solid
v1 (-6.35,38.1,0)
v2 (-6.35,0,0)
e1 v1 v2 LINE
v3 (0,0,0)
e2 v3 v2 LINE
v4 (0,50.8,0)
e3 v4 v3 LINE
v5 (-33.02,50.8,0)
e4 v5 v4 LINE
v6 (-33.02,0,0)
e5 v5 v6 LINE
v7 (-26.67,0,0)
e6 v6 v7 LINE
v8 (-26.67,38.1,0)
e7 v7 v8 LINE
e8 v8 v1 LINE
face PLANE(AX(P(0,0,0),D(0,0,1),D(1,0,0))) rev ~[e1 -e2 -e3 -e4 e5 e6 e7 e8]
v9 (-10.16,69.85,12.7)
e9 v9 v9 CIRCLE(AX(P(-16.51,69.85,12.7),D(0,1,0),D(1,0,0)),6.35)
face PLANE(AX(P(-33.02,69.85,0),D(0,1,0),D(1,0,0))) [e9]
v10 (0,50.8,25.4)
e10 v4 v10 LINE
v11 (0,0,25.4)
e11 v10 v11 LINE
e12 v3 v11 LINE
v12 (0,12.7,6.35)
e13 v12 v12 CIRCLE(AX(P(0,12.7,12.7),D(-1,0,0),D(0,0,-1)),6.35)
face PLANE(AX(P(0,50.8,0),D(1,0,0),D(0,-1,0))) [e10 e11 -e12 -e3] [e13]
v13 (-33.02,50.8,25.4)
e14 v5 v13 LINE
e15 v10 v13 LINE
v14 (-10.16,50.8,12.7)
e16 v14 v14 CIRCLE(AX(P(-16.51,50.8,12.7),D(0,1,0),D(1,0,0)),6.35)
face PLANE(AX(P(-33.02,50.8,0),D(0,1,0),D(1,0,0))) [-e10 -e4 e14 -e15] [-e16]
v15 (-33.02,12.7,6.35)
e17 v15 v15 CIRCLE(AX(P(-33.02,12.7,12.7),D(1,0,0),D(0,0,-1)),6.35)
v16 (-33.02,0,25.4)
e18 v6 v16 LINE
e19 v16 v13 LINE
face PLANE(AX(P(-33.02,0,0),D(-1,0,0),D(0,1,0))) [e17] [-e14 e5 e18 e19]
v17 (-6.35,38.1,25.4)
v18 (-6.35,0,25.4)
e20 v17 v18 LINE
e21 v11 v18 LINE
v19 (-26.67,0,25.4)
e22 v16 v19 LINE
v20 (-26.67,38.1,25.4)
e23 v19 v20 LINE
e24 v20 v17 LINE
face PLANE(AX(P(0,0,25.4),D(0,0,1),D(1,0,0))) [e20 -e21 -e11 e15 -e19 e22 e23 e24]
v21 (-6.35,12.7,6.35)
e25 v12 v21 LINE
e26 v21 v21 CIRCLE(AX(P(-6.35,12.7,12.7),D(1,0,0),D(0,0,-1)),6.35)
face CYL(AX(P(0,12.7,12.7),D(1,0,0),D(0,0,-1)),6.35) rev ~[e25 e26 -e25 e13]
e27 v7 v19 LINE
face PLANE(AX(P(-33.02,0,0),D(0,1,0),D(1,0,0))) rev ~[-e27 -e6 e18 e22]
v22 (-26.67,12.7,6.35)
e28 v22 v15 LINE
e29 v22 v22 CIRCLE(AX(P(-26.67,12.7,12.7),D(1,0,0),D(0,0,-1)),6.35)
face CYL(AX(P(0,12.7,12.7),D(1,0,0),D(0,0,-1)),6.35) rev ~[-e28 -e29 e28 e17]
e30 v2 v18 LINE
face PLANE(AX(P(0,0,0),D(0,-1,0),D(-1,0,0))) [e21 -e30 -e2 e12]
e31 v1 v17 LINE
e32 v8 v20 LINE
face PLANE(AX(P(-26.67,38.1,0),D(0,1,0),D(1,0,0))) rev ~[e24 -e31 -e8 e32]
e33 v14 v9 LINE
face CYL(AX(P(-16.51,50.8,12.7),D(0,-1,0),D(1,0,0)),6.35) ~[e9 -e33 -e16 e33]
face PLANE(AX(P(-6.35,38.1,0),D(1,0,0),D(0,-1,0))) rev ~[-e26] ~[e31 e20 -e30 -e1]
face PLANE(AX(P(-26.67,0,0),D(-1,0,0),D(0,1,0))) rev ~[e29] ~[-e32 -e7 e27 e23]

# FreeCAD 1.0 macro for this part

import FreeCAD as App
import Part
import Sketcher

V = App.Vector
Q = App.Units.Quantity

doc = App.newDocument("Part")
body = doc.addObject("PartDesign::Body", "Body")

sketch1 = body.newObject("Sketcher::SketchObject", "Sketch")
sketch1.AttachmentSupport = (doc.getObject("XY_Plane"), [""])
sketch1.MapMode = "FlatFace"
sketch1.addGeometry([
    Part.LineSegment(V(-33, 51, 0), V(-33, 0, 0)),
    Part.LineSegment(V(-33, 0, 0), V(-27, 0, 0)),
    Part.LineSegment(V(-27, 0, 0), V(-27, 38, 0)),
    Part.LineSegment(V(-27, 38, 0), V(-6, 38, 0)),
    Part.LineSegment(V(-6, 38, 0), V(-6, 0, 0)),
    Part.LineSegment(V(-6, 0, 0), V(0, 0, 0)),
    Part.LineSegment(V(0, 0, 0), V(0, 51, 0)),
    Part.LineSegment(V(0, 51, 0), V(-33, 51, 0)),
], False)
sketch1.addConstraint([
    Sketcher.Constraint("Coincident", 0, 2, 1, 1),
    Sketcher.Constraint("Coincident", 1, 2, 2, 1),
    Sketcher.Constraint("Coincident", 2, 2, 3, 1),
    Sketcher.Constraint("Coincident", 3, 2, 4, 1),
    Sketcher.Constraint("Coincident", 4, 2, 5, 1),
    Sketcher.Constraint("Coincident", 5, 2, 6, 1),
    Sketcher.Constraint("Coincident", 6, 2, 7, 1),
    Sketcher.Constraint("Coincident", 7, 2, 0, 1),
    Sketcher.Constraint("Vertical", 0),
    Sketcher.Constraint("Horizontal", 1),
    Sketcher.Constraint("Vertical", 2),
    Sketcher.Constraint("Horizontal", 3),
    Sketcher.Constraint("Vertical", 4),
    Sketcher.Constraint("Horizontal", 5),
    Sketcher.Constraint("Vertical", 6),
    Sketcher.Constraint("Horizontal", 7),
    Sketcher.Constraint("Coincident", 5, 2, -1, 1),
    Sketcher.Constraint("PointOnObject", 0, 2, -1),
    Sketcher.Constraint("Equal", 1, 5),
    Sketcher.Constraint("DistanceY", 0, 2, 0, 1, Q("2 in")),
    Sketcher.Constraint("DistanceX", 7, 2, 7, 1, Q("1.3 in")),
    Sketcher.Constraint("DistanceY", 2, 1, 2, 2, Q("1.5 in")),
    Sketcher.Constraint("DistanceX", 1, 1, 1, 2, Q("0.25 in")),
])
pad1 = body.newObject("PartDesign::Pad", "Pad")
pad1.Profile = sketch1
pad1.Length = Q("1 in")

sketch2 = body.newObject("Sketcher::SketchObject", "Sketch001")
sketch2.AttachmentSupport = (doc.getObject("YZ_Plane"), [""])
sketch2.MapMode = "FlatFace"
sketch2.addGeometry(Part.Circle(V(13, 13, 0), V(0, 0, 1), 6), False)
sketch2.addConstraint([
    Sketcher.Constraint("Diameter", 0, Q("0.5 in")),
    Sketcher.Constraint("DistanceX", -1, 1, 0, 3, Q("0.5 in")),
    Sketcher.Constraint("DistanceY", -1, 1, 0, 3, Q("0.5 in")),
])
pocket1 = body.newObject("PartDesign::Pocket", "Pocket")
pocket1.Profile = sketch2
pocket1.Length = Q("10 in")

sketch3 = body.newObject("Sketcher::SketchObject", "Sketch002")
sketch3.AttachmentSupport = (doc.getObject("XZ_Plane"), [""])
sketch3.MapMode = "FlatFace"
sketch3.AttachmentOffset = App.Placement(V(0, 0, -2 * 25.4), App.Rotation())
sketch3.addGeometry(Part.Circle(V(-17, 13, 0), V(0, 0, 1), 6), False)
sketch3.addConstraint([
    Sketcher.Constraint("Diameter", 0, Q("0.5 in")),
    Sketcher.Constraint("DistanceY", -1, 1, 0, 3, Q("0.5 in")),
    Sketcher.Constraint("DistanceX", 0, 3, -1, 1, Q("0.65 in")),
])
pad2 = body.newObject("PartDesign::Pad", "Pad001")
pad2.Profile = sketch3
pad2.Length = Q("0.75 in")
pad2.Reversed = True

doc.recompute()
